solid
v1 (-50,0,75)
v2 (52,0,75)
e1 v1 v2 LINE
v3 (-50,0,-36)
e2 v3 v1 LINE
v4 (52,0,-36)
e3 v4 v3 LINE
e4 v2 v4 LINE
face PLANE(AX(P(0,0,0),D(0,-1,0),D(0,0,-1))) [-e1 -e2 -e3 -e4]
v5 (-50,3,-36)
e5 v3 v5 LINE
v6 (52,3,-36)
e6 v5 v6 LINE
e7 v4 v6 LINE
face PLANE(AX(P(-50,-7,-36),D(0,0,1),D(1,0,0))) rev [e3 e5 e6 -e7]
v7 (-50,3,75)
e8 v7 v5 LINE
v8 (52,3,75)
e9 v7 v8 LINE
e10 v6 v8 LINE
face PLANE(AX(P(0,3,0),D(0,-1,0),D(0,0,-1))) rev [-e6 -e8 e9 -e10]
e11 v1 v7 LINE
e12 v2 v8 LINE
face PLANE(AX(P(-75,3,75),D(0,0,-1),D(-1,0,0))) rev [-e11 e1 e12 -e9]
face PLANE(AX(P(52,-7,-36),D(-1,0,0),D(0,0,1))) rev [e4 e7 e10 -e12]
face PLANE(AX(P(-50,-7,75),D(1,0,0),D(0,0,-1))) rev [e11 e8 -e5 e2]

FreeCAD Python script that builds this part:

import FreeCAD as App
import Part
import Sketcher

V = App.Vector
Q = App.Units.Quantity

doc = App.newDocument("Part")
body = doc.addObject("PartDesign::Body", "Body")

# Sketch on XZ plane
sketch1 = body.newObject("Sketcher::SketchObject", "Sketch")
sketch1.AttachmentSupport = (doc.getObject("XZ_Plane"), [""])
sketch1.MapMode = "FlatFace"
sketch1.addGeometry([
    Part.LineSegment(V(-75, -75, 0), V(-75, 75, 0)),
    Part.LineSegment(V(-75, 75, 0), V(75, 75, 0)),
    Part.LineSegment(V(75, 75, 0), V(75, -75, 0)),
    Part.LineSegment(V(75, -75, 0), V(-75, -75, 0)),
], False)
sketch1.addConstraint([
    Sketcher.Constraint("Coincident", 0, 2, 1, 1),
    Sketcher.Constraint("Coincident", 1, 2, 2, 1),
    Sketcher.Constraint("Coincident", 2, 2, 3, 1),
    Sketcher.Constraint("Coincident", 3, 2, 0, 1),
    Sketcher.Constraint("Vertical", 0),
    Sketcher.Constraint("Horizontal", 1),
    Sketcher.Constraint("Vertical", 2),
    Sketcher.Constraint("Horizontal", 3),
    Sketcher.Constraint("Symmetric", 0, 2, 2, 2, -1, 1),
    Sketcher.Constraint("Equal", 3, 0),
    Sketcher.Constraint("DistanceX", 1, 1, 1, 2, Q("150 mm")),
])
pad1 = body.newObject("PartDesign::Pad", "Pad")
pad1.Profile = sketch1
pad1.Length = 3
pad1.Reversed = True

# Sketch on XZ plane
sketch2 = body.newObject("Sketcher::SketchObject", "Sketch001")
sketch2.AttachmentSupport = (doc.getObject("XZ_Plane"), [""])
sketch2.MapMode = "FlatFace"
sketch2.AttachmentOffset = App.Placement(V(0, 0, -3), App.Rotation())
sketch2.addGeometry([
    Part.LineSegment(V(-50, 75, 0), V(-50, -36, 0)),  # 0
    Part.LineSegment(V(-50, -36, 0), V(52, -36, 0)),  # 1
    Part.LineSegment(V(52, -36, 0), V(52, 75, 0)),  # 2
    Part.LineSegment(V(52, 75, 0), V(75, 75, 0)),  # 3
    Part.LineSegment(V(75, 75, 0), V(75, -75, 0)),  # 4
    Part.LineSegment(V(75, -75, 0), V(-75, -75, 0)),  # 5
    Part.LineSegment(V(-75, -75, 0), V(-75, 75, 0)),  # 6
    Part.LineSegment(V(-75, 75, 0), V(-50, 75, 0)),  # 7
], False)
sketch2.addConstraint([
    Sketcher.Constraint("Coincident", 0, 2, 1, 1),
    Sketcher.Constraint("Coincident", 1, 2, 2, 1),
    Sketcher.Constraint("Coincident", 2, 2, 3, 1),
    Sketcher.Constraint("Coincident", 3, 2, 4, 1),
    Sketcher.Constraint("Coincident", 4, 2, 5, 1),
    Sketcher.Constraint("Coincident", 5, 2, 6, 1),
    Sketcher.Constraint("Coincident", 6, 2, 7, 1),
    Sketcher.Constraint("Coincident", 7, 2, 0, 1),
    Sketcher.Constraint("Vertical", 0),
    Sketcher.Constraint("Horizontal", 1),
    Sketcher.Constraint("Vertical", 2),
    Sketcher.Constraint("Horizontal", 3),
    Sketcher.Constraint("Vertical", 4),
    Sketcher.Constraint("Horizontal", 5),
    Sketcher.Constraint("Vertical", 6),
    Sketcher.Constraint("Horizontal", 7),
    Sketcher.Constraint("Symmetric", 3, 2, 5, 2, -1, 1),
    Sketcher.Constraint("Horizontal", 3, 2, 6, 2),
    Sketcher.Constraint("Equal", 5, 4),
    Sketcher.Constraint("DistanceX", 1, 1, 1, 2, Q("102 mm")),
    Sketcher.Constraint("DistanceX", 3, 1, 3, 2, Q("23 mm")),
    Sketcher.Constraint("DistanceX", 5, 2, 5, 1, Q("150 mm")),
    Sketcher.Constraint("DistanceY", 0, 2, 0, 1, Q("111 mm")),
])
pocket1 = body.newObject("PartDesign::Pocket", "Pocket")
pocket1.Profile = sketch2
pocket1.Length = 10
pocket1.Reversed = True

doc.recompute()
